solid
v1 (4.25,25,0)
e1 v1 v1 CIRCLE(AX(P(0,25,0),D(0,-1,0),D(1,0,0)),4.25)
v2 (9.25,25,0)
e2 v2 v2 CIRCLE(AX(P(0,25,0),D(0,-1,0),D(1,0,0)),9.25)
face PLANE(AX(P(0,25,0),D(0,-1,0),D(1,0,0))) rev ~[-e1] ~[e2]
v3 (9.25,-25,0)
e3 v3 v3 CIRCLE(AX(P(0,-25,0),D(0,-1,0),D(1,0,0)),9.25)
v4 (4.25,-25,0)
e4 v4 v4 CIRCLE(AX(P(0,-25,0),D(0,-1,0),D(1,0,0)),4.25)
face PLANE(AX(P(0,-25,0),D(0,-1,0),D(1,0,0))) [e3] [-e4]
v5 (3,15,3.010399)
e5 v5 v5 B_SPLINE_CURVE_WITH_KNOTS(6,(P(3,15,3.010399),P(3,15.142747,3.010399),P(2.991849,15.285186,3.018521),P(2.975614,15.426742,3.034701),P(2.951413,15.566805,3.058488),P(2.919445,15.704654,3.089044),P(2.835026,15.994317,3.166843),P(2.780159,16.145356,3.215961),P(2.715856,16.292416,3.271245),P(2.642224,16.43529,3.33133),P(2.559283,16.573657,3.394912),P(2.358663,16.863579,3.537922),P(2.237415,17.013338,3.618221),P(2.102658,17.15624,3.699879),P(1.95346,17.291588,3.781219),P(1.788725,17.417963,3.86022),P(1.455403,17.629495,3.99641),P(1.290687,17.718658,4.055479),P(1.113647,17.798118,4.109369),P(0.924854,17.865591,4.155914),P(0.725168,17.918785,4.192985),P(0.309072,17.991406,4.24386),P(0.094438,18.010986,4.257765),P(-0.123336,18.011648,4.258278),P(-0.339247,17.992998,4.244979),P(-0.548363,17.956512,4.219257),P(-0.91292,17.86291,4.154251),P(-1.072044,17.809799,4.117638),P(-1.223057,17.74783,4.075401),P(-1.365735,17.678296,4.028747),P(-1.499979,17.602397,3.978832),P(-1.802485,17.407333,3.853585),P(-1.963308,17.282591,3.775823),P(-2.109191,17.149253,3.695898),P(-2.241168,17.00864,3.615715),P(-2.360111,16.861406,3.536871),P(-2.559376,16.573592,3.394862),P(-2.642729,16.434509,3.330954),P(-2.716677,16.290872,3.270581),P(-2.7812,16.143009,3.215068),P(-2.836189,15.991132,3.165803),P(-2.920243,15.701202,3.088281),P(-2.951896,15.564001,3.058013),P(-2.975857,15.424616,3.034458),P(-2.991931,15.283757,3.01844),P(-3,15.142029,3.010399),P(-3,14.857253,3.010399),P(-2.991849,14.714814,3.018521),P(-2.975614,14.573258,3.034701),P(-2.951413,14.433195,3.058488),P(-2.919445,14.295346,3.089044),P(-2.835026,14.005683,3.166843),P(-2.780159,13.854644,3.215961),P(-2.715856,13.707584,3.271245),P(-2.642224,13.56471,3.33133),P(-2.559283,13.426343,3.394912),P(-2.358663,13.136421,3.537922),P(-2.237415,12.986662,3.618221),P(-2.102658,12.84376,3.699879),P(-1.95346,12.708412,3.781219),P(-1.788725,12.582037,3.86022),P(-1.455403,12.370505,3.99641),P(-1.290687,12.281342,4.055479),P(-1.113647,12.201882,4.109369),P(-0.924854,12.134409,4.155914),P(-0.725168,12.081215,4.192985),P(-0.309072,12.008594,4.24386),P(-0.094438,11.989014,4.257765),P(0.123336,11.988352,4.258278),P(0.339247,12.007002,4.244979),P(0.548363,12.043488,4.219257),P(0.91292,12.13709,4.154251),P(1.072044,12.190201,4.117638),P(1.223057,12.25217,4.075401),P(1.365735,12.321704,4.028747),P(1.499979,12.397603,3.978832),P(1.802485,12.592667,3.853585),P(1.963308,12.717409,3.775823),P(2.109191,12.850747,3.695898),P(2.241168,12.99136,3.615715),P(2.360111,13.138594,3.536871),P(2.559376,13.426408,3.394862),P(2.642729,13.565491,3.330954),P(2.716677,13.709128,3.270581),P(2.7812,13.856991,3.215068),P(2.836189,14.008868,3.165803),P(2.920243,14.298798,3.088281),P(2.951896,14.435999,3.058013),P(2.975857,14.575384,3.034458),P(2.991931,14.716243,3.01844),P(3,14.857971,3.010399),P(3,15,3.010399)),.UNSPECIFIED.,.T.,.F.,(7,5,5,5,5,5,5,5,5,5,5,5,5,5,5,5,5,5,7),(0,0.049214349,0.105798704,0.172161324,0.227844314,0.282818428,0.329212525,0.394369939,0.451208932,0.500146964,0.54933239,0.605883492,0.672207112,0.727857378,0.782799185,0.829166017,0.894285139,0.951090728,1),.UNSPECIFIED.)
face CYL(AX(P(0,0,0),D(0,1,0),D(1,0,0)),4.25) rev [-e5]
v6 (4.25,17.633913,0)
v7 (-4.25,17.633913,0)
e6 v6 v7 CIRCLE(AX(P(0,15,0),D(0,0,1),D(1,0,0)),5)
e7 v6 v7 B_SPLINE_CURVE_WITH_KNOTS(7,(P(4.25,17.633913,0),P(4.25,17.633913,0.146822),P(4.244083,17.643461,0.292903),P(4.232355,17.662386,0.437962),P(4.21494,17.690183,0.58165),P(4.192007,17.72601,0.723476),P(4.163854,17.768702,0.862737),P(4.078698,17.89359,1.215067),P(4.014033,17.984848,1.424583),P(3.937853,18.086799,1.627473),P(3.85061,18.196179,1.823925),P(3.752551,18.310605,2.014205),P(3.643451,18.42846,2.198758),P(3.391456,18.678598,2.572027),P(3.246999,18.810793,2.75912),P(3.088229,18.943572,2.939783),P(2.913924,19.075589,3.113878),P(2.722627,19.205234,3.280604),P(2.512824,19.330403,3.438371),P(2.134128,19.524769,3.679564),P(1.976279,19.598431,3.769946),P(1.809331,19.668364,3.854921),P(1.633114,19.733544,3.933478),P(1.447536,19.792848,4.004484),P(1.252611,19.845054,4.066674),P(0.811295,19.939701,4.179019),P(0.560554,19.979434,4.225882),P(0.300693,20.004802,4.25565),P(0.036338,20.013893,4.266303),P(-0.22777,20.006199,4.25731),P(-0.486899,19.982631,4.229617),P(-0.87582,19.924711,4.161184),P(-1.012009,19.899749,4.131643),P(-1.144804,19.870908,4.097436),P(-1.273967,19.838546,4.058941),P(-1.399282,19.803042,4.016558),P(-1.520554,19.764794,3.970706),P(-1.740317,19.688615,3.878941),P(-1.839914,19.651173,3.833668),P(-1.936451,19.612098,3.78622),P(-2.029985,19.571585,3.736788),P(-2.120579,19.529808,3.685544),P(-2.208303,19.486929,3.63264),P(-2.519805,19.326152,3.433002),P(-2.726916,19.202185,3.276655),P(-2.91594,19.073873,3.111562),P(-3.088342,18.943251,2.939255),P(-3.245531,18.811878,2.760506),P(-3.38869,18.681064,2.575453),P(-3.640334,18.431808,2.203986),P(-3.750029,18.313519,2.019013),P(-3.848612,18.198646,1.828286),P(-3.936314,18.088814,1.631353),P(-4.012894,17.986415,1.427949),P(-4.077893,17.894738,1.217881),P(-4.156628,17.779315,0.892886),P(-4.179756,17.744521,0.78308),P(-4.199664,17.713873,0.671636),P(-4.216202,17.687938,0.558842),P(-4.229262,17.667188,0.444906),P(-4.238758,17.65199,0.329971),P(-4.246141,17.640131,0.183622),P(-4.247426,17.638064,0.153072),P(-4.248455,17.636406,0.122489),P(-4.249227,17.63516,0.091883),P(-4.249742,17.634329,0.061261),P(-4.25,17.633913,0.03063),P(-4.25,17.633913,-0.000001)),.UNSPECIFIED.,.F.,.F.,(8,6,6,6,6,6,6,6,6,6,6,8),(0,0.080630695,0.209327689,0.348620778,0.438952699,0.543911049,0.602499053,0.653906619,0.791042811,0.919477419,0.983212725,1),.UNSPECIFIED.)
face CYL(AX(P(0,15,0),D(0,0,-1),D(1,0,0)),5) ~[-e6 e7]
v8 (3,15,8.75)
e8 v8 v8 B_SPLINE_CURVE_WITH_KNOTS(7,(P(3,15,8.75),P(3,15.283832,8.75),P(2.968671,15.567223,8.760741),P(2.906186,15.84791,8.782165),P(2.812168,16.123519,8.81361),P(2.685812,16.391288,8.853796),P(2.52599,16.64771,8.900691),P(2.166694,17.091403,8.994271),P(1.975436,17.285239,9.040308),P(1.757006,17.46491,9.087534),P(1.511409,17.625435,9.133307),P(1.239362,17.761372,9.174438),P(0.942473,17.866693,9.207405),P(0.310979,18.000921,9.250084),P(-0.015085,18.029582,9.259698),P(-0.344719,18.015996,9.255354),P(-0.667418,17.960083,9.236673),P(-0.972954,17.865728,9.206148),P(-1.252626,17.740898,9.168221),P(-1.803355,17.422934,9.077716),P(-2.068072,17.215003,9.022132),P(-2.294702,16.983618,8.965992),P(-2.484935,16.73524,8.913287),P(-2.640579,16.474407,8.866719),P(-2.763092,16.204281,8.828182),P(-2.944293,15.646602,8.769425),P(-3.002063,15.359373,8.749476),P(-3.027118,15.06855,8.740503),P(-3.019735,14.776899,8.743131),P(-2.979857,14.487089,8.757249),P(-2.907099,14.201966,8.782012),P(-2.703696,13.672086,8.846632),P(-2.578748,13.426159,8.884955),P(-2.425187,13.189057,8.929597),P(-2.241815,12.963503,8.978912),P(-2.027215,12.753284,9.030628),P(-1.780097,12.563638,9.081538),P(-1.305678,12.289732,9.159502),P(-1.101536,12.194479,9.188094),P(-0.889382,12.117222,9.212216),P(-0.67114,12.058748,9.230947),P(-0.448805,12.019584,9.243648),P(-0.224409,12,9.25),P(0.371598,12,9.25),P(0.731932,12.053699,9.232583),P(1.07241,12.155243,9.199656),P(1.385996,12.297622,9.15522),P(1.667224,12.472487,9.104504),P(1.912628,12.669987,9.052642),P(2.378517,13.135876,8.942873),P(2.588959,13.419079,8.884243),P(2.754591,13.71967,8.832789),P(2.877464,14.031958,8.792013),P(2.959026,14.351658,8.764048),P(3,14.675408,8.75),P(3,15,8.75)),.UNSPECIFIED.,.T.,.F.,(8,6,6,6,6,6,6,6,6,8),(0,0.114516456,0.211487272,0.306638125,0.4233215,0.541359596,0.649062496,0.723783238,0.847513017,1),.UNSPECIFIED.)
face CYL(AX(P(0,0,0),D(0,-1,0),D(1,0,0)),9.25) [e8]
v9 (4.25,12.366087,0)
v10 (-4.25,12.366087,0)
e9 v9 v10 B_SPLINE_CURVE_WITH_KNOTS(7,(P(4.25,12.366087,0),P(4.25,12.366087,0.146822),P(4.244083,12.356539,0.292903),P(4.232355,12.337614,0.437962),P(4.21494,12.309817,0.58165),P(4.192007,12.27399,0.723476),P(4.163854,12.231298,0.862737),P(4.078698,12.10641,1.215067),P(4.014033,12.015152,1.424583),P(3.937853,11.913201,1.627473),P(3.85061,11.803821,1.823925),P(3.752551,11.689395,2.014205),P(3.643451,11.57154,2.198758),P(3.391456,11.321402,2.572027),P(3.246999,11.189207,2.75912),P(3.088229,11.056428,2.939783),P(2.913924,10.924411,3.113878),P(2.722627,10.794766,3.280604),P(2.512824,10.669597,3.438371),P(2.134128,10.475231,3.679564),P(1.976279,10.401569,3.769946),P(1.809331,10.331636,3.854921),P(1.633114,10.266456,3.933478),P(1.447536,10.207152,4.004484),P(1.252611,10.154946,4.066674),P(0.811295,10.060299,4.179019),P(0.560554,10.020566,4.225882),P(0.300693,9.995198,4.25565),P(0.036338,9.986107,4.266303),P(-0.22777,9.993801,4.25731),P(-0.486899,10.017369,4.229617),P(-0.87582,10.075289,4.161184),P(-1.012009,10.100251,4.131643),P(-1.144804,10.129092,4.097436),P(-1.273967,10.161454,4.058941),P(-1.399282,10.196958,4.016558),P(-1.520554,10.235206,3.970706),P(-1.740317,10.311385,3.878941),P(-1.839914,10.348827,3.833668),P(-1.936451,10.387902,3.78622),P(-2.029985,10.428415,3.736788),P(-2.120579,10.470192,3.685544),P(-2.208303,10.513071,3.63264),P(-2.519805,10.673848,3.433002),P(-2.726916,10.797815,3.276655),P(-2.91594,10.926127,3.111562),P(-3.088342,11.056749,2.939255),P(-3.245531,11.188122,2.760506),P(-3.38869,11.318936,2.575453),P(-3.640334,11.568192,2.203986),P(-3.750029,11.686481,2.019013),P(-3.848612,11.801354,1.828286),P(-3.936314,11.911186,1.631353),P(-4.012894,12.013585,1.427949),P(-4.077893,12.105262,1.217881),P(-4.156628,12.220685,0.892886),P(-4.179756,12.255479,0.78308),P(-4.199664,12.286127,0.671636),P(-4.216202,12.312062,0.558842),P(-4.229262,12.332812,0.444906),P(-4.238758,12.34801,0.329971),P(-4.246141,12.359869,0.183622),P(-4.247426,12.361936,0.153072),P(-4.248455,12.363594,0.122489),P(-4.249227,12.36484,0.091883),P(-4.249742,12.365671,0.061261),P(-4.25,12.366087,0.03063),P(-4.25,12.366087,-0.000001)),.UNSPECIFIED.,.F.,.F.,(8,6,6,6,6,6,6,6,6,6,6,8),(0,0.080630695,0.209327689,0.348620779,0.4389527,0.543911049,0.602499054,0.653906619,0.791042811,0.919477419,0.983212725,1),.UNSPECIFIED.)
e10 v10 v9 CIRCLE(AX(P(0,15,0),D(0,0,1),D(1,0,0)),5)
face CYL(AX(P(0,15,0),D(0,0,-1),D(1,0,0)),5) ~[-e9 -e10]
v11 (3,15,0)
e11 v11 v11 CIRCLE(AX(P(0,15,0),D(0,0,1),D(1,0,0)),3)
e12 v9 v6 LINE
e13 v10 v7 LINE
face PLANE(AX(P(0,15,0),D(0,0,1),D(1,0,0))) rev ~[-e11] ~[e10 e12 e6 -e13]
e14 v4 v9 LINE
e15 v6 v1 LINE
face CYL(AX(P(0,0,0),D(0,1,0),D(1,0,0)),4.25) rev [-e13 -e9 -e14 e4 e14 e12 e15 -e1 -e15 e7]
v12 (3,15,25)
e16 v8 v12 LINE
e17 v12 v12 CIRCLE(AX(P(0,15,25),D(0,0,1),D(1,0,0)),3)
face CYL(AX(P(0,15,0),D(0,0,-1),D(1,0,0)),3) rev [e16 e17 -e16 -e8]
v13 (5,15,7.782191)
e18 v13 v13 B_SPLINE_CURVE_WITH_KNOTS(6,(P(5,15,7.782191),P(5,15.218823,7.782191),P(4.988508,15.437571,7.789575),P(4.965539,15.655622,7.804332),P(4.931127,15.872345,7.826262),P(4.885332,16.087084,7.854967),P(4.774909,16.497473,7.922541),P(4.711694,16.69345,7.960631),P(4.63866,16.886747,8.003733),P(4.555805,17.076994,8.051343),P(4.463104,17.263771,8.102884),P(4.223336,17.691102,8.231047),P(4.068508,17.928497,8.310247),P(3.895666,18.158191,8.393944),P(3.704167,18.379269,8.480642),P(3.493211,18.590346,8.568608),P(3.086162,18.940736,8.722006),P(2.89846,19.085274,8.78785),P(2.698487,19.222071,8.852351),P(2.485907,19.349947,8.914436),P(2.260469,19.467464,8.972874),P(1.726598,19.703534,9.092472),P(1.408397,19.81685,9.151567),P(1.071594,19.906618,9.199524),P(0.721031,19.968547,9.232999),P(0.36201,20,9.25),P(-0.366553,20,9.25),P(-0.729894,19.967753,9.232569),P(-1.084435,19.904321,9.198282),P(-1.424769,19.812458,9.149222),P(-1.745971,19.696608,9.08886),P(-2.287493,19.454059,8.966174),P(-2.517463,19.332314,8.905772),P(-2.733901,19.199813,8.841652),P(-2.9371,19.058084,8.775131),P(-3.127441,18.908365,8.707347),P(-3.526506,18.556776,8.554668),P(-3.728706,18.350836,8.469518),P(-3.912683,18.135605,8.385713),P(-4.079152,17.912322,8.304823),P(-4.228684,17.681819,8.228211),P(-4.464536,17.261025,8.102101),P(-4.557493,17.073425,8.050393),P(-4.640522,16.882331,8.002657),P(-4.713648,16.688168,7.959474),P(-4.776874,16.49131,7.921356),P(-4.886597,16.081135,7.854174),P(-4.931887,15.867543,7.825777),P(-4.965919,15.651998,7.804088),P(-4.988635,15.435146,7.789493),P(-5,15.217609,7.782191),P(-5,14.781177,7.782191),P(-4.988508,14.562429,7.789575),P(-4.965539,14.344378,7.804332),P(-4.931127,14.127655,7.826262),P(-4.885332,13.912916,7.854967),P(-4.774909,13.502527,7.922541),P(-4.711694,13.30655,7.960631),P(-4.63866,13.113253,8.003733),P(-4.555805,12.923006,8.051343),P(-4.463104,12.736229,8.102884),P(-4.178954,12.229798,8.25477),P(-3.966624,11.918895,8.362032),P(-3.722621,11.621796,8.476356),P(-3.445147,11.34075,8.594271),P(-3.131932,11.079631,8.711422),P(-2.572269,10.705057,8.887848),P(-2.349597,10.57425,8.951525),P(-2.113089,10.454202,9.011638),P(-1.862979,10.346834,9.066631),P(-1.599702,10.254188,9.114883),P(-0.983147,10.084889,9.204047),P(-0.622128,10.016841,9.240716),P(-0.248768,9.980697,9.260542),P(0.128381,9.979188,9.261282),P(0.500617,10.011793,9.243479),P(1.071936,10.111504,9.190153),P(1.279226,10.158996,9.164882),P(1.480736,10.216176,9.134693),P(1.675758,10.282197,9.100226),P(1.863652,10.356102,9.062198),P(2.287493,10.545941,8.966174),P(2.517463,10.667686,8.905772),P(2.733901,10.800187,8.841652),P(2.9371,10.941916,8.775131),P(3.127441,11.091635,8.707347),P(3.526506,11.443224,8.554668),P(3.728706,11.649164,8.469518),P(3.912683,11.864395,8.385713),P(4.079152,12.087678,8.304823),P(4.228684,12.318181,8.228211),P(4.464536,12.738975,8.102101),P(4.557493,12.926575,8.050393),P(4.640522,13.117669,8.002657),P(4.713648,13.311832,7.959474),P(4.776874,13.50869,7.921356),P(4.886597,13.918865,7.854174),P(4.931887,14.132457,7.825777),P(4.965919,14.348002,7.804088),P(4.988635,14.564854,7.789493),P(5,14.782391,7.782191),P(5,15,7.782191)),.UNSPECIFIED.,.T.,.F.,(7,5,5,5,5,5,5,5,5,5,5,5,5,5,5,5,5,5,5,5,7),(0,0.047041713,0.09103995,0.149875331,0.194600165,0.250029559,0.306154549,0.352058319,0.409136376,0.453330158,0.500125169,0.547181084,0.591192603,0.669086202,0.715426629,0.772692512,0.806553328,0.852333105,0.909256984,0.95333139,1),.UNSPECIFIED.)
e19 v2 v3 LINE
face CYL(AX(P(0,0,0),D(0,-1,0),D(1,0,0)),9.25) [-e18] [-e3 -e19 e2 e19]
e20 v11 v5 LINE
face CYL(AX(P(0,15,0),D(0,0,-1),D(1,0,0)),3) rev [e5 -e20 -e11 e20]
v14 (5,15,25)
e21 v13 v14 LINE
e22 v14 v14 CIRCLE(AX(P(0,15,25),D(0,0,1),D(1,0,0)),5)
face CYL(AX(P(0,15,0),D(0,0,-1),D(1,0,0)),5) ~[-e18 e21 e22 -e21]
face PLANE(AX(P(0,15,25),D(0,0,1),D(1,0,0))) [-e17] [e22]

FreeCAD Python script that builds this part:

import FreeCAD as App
import Part
import Sketcher

V = App.Vector
Q = App.Units.Quantity

doc = App.newDocument("Part")
body = doc.addObject("PartDesign::Body", "Body")

# Sketch on XZ plane
sketch1 = doc.addObject("Sketcher::SketchObject", "Sketch")
body.addObject(sketch1)
sketch1.AttachmentSupport = (doc.XZ_Plane, [""])
sketch1.MapMode = "FlatFace"
sketch1.addGeometry([
    Part.Circle(V(0, 0, 0), V(0, 0, 1), 9.2),
    Part.Circle(V(0, 0, 0), V(0, 0, 1), 4.2),
], False)
sketch1.addConstraint([
    Sketcher.Constraint("Coincident", 0, 3, -1, 1),
    Sketcher.Constraint("Coincident", 1, 3, -1, 1),
    Sketcher.Constraint("Diameter", 0, Q("18.5 mm")),
    Sketcher.Constraint("Diameter", 1, Q("8.5 mm")),
])
pad1 = doc.addObject("PartDesign::Pad", "Pad")
body.addObject(pad1)
pad1.Profile = sketch1
pad1.Length = 50
pad1.Midplane = True

# Sketch on XY plane
sketch2 = doc.addObject("Sketcher::SketchObject", "Sketch001")
body.addObject(sketch2)
sketch2.AttachmentSupport = (doc.XY_Plane, [""])
sketch2.MapMode = "FlatFace"
sketch2.addGeometry([
    Part.Circle(V(0, 15, 0), V(0, 0, 1), 5),
    Part.Circle(V(0, 15, 0), V(0, 0, 1), 3),
], False)
sketch2.addConstraint([
    Sketcher.Constraint("Coincident", 1, 3, 0, 3),
    Sketcher.Constraint("PointOnObject", 0, 3, -2),
    Sketcher.Constraint("Diameter", 0, Q("10 mm")),
    Sketcher.Constraint("Diameter", 1, Q("6 mm")),
    Sketcher.Constraint("DistanceY", -1, 1, 0, 3, Q("15 mm")),
])
pad2 = doc.addObject("PartDesign::Pad", "Pad001")
body.addObject(pad2)
pad2.Profile = sketch2
pad2.Length = 25

doc.recompute()
